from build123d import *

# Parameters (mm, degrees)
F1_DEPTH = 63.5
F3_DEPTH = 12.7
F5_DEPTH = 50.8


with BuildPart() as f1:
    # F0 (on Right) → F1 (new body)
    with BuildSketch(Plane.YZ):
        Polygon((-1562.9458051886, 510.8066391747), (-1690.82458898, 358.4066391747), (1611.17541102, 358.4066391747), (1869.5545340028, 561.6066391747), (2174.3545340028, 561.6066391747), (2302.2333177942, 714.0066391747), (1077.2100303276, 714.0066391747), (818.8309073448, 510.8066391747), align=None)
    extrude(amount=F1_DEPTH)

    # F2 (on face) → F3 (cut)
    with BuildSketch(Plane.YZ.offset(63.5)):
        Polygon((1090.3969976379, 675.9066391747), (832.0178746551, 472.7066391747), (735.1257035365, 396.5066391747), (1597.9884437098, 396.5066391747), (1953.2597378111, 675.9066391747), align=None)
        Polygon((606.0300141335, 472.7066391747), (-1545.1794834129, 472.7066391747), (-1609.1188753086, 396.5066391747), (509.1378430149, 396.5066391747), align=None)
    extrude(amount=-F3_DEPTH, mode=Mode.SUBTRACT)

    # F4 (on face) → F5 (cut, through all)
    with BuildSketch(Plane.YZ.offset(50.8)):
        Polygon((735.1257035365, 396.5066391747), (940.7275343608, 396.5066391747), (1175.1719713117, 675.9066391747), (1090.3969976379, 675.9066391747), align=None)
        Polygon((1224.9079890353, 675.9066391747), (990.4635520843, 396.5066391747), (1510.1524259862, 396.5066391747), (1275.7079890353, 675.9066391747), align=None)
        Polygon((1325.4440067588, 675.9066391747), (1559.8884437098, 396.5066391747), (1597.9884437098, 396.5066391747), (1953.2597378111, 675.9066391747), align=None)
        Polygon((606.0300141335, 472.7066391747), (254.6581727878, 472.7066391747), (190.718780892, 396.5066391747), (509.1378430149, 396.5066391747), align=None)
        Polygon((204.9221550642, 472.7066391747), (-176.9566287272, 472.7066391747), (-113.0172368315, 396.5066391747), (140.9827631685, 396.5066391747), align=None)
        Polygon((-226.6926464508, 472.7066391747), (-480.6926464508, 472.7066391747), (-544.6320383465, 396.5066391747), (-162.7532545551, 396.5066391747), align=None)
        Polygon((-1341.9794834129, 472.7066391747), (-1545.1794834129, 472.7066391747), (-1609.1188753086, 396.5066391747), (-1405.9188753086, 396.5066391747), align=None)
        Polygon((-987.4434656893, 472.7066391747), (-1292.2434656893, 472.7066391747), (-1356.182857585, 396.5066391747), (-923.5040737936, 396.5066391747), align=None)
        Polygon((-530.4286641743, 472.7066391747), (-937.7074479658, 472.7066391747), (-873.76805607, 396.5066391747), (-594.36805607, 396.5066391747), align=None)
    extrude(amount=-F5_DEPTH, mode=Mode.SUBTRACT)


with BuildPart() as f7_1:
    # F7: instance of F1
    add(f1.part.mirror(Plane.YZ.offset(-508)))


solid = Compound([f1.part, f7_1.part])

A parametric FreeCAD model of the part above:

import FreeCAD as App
import Part
import Sketcher
Q = App.Units.Quantity

doc = App.newDocument("Part")
body = doc.addObject("PartDesign::Body", "Body")

# Sketch on YZ plane
sketch1 = body.newObject("Sketcher::SketchObject", "Sketch")
sketch1.AttachmentSupport = (doc.getObject("YZ_Plane"), [""])
sketch1.MapMode = "FlatFace"
sketch1.addGeometry([
    Part.LineSegment(App.Vector(-1563, 511, 0), App.Vector(-1691, 358, 0)),  # 0
    Part.LineSegment(App.Vector(-1691, 358, 0), App.Vector(1611, 358, 0)),  # 1
    Part.LineSegment(App.Vector(1611, 358, 0), App.Vector(1870, 562, 0)),  # 2
    Part.LineSegment(App.Vector(1870, 562, 0), App.Vector(2174, 562, 0)),  # 3
    Part.LineSegment(App.Vector(2174, 562, 0), App.Vector(2302, 714, 0)),  # 4
    Part.LineSegment(App.Vector(2302, 714, 0), App.Vector(1077, 714, 0)),  # 5
    Part.LineSegment(App.Vector(1077, 714, 0), App.Vector(819, 511, 0)),  # 6
    Part.LineSegment(App.Vector(819, 511, 0), App.Vector(-1563, 511, 0)),  # 7
], False)
sketch1.addConstraint([
    Sketcher.Constraint("Coincident", 0, 2, 1, 1),
    Sketcher.Constraint("Coincident", 1, 2, 2, 1),
    Sketcher.Constraint("Coincident", 2, 2, 3, 1),
    Sketcher.Constraint("Coincident", 3, 2, 4, 1),
    Sketcher.Constraint("Coincident", 4, 2, 5, 1),
    Sketcher.Constraint("Coincident", 5, 2, 6, 1),
    Sketcher.Constraint("Coincident", 6, 2, 7, 1),
    Sketcher.Constraint("Coincident", 7, 2, 0, 1),
    Sketcher.Constraint("Horizontal", 1),
    Sketcher.Constraint("Horizontal", 3),
    Sketcher.Constraint("Horizontal", 5),
    Sketcher.Constraint("Horizontal", 7),
    Sketcher.Constraint("Parallel", 0, 4),
    Sketcher.Constraint("Parallel", 2, 6),
    Sketcher.Constraint("Equal", 0, 4),
    Sketcher.Constraint("DistanceX", 1, 1, 1, 2, Q("130 in")),
    Sketcher.Constraint("DistanceX", 3, 1, 3, 2, Q("12 in")),
    Sketcher.Constraint("Angle", 0, Q("-130 deg")),
    Sketcher.Constraint("DistanceY", 1, 2, 2, 2, Q("8 in")),
    Sketcher.Constraint("DistanceY", 3, 2, 4, 2, Q("6 in")),
    Sketcher.Constraint("DistanceX", 5, 2, 5, 1, Q("1225.023287 mm")),
    Sketcher.Constraint("DistanceX", 0, 2, -1, 1, Q("1690.824589 mm")),
    Sketcher.Constraint("DistanceY", -1, 1, 0, 2, Q("358.406639 mm")),
    Sketcher.Constraint("DistanceX", -1, 1, 5, 2, Q("1077.21003 mm")),
])
pad1 = body.newObject("PartDesign::Pad", "Pad")
pad1.Profile = sketch1
pad1.Length = Q("2.5 in")

# Sketch on YZ plane
sketch2 = body.newObject("Sketcher::SketchObject", "Sketch001")
sketch2.AttachmentSupport = (doc.getObject("YZ_Plane"), [""])
sketch2.MapMode = "FlatFace"
sketch2.AttachmentOffset = App.Placement(App.Vector(0, 0, 2.5 * 25.4), App.Rotation())
sketch2.addGeometry([
    Part.LineSegment(App.Vector(1090, 676, 0), App.Vector(735, 397, 0)),  # 0
    Part.LineSegment(App.Vector(735, 397, 0), App.Vector(1598, 397, 0)),  # 1
    Part.LineSegment(App.Vector(1598, 397, 0), App.Vector(1953, 676, 0)),  # 2
    Part.LineSegment(App.Vector(1953, 676, 0), App.Vector(1090, 676, 0)),  # 3
    Part.LineSegment(App.Vector(606, 473, 0), App.Vector(-1545, 473, 0)),  # 4
    Part.LineSegment(App.Vector(-1545, 473, 0), App.Vector(-1609, 397, 0)),  # 5
    Part.LineSegment(App.Vector(-1609, 397, 0), App.Vector(509, 397, 0)),  # 6
    Part.LineSegment(App.Vector(509, 397, 0), App.Vector(606, 473, 0)),  # 7
], False)
sketch2.addConstraint([
    Sketcher.Constraint("Coincident", 0, 2, 1, 1),
    Sketcher.Constraint("Coincident", 1, 2, 2, 1),
    Sketcher.Constraint("Coincident", 2, 2, 3, 1),
    Sketcher.Constraint("Coincident", 3, 2, 0, 1),
    Sketcher.Constraint("Coincident", 4, 2, 5, 1),
    Sketcher.Constraint("Coincident", 5, 2, 6, 1),
    Sketcher.Constraint("Coincident", 6, 2, 7, 1),
    Sketcher.Constraint("Coincident", 7, 2, 4, 1),
    Sketcher.Constraint("Horizontal", 1),
    Sketcher.Constraint("Horizontal", 3),
    Sketcher.Constraint("Horizontal", 4),
    Sketcher.Constraint("Horizontal", 6),
    Sketcher.Constraint("Parallel", 0, 2),
    Sketcher.Constraint("Parallel", 2, 7),
    Sketcher.Constraint("Horizontal", 1, 2, 5, 2),
    Sketcher.Constraint("Angle", 5, Q("-130 deg")),
    Sketcher.Constraint("DistanceY", 1, 2, 2, 2, Q("11 in")),
    Sketcher.Constraint("DistanceY", 0, 2, 4, 2, Q("3 in")),
    Sketcher.Constraint("DistanceX", 1, 1, 1, 2, Q("862.86274 mm")),
    Sketcher.Constraint("DistanceX", 6, 1, 6, 2, Q("2118.256718 mm")),
    Sketcher.Constraint("DistanceX", 6, 2, 1, 2, Q("1088.850601 mm")),
    Sketcher.Constraint("Distance", 0, Q("451.975721 mm")),
    Sketcher.Constraint("DistanceY", -1, 1, 0, 2, Q("396.506639 mm")),
    Sketcher.Constraint("DistanceX", -1, 1, 0, 2, Q("735.125704 mm")),
])
pocket1 = body.newObject("PartDesign::Pocket", "Pocket")
pocket1.Profile = sketch2
pocket1.Length = Q("0.5 in")

# Sketch on YZ plane
sketch3 = body.newObject("Sketcher::SketchObject", "Sketch002")
sketch3.AttachmentSupport = (doc.getObject("YZ_Plane"), [""])
sketch3.MapMode = "FlatFace"
sketch3.AttachmentOffset = App.Placement(App.Vector(0, 0, 2 * 25.4), App.Rotation())
sketch3.addGeometry([
    Part.LineSegment(App.Vector(735, 397, 0), App.Vector(941, 397, 0)),  # 0
    Part.LineSegment(App.Vector(941, 397, 0), App.Vector(1175, 676, 0)),  # 1
    Part.LineSegment(App.Vector(1175, 676, 0), App.Vector(1090, 676, 0)),  # 2
    Part.LineSegment(App.Vector(1090, 676, 0), App.Vector(735, 397, 0)),  # 3
    Part.LineSegment(App.Vector(1225, 676, 0), App.Vector(990, 397, 0)),  # 4
    Part.LineSegment(App.Vector(990, 397, 0), App.Vector(1510, 397, 0)),  # 5
    Part.LineSegment(App.Vector(1510, 397, 0), App.Vector(1276, 676, 0)),  # 6
    Part.LineSegment(App.Vector(1276, 676, 0), App.Vector(1225, 676, 0)),  # 7
    Part.LineSegment(App.Vector(1325, 676, 0), App.Vector(1560, 397, 0)),  # 8
    Part.LineSegment(App.Vector(1560, 397, 0), App.Vector(1598, 397, 0)),  # 9
    Part.LineSegment(App.Vector(1598, 397, 0), App.Vector(1953, 676, 0)),  # 10
    Part.LineSegment(App.Vector(1953, 676, 0), App.Vector(1325, 676, 0)),  # 11
    Part.LineSegment(App.Vector(606, 473, 0), App.Vector(255, 473, 0)),  # 12
    Part.LineSegment(App.Vector(255, 473, 0), App.Vector(191, 397, 0)),  # 13
    Part.LineSegment(App.Vector(191, 397, 0), App.Vector(509, 397, 0)),  # 14
    Part.LineSegment(App.Vector(509, 397, 0), App.Vector(606, 473, 0)),  # 15
    Part.LineSegment(App.Vector(205, 473, 0), App.Vector(-177, 473, 0)),  # 16
    Part.LineSegment(App.Vector(-177, 473, 0), App.Vector(-113, 397, 0)),  # 17
    Part.LineSegment(App.Vector(-113, 397, 0), App.Vector(141, 397, 0)),  # 18
    Part.LineSegment(App.Vector(141, 397, 0), App.Vector(205, 473, 0)),  # 19
    Part.LineSegment(App.Vector(-227, 473, 0), App.Vector(-481, 473, 0)),  # 20
    Part.LineSegment(App.Vector(-481, 473, 0), App.Vector(-545, 397, 0)),  # 21
    Part.LineSegment(App.Vector(-545, 397, 0), App.Vector(-163, 397, 0)),  # 22
    Part.LineSegment(App.Vector(-163, 397, 0), App.Vector(-227, 473, 0)),  # 23
    Part.LineSegment(App.Vector(-1342, 473, 0), App.Vector(-1545, 473, 0)),  # 24
    Part.LineSegment(App.Vector(-1545, 473, 0), App.Vector(-1609, 397, 0)),  # 25
    Part.LineSegment(App.Vector(-1609, 397, 0), App.Vector(-1406, 397, 0)),  # 26
    Part.LineSegment(App.Vector(-1406, 397, 0), App.Vector(-1342, 473, 0)),  # 27
    Part.LineSegment(App.Vector(-987, 473, 0), App.Vector(-1292, 473, 0)),  # 28
    Part.LineSegment(App.Vector(-1292, 473, 0), App.Vector(-1356, 397, 0)),  # 29
    Part.LineSegment(App.Vector(-1356, 397, 0), App.Vector(-924, 397, 0)),  # 30
    Part.LineSegment(App.Vector(-924, 397, 0), App.Vector(-987, 473, 0)),  # 31
    Part.LineSegment(App.Vector(-530, 473, 0), App.Vector(-938, 473, 0)),  # 32
    Part.LineSegment(App.Vector(-938, 473, 0), App.Vector(-874, 397, 0)),  # 33
    Part.LineSegment(App.Vector(-874, 397, 0), App.Vector(-594, 397, 0)),  # 34
    Part.LineSegment(App.Vector(-594, 397, 0), App.Vector(-530, 473, 0)),  # 35
], False)
sketch3.addConstraint([
    Sketcher.Constraint("Coincident", 0, 2, 1, 1),
    Sketcher.Constraint("Coincident", 1, 2, 2, 1),
    Sketcher.Constraint("Coincident", 2, 2, 3, 1),
    Sketcher.Constraint("Coincident", 3, 2, 0, 1),
    Sketcher.Constraint("Coincident", 4, 2, 5, 1),
    Sketcher.Constraint("Coincident", 5, 2, 6, 1),
    Sketcher.Constraint("Coincident", 6, 2, 7, 1),
    Sketcher.Constraint("Coincident", 7, 2, 4, 1),
    Sketcher.Constraint("Coincident", 8, 2, 9, 1),
    Sketcher.Constraint("Coincident", 9, 2, 10, 1),
    Sketcher.Constraint("Coincident", 10, 2, 11, 1),
    Sketcher.Constraint("Coincident", 11, 2, 8, 1),
    Sketcher.Constraint("Coincident", 12, 2, 13, 1),
    Sketcher.Constraint("Coincident", 13, 2, 14, 1),
    Sketcher.Constraint("Coincident", 14, 2, 15, 1),
    Sketcher.Constraint("Coincident", 15, 2, 12, 1),
    Sketcher.Constraint("Coincident", 16, 2, 17, 1),
    Sketcher.Constraint("Coincident", 17, 2, 18, 1),
    Sketcher.Constraint("Coincident", 18, 2, 19, 1),
    Sketcher.Constraint("Coincident", 19, 2, 16, 1),
    Sketcher.Constraint("Coincident", 20, 2, 21, 1),
    Sketcher.Constraint("Coincident", 21, 2, 22, 1),
    Sketcher.Constraint("Coincident", 22, 2, 23, 1),
    Sketcher.Constraint("Coincident", 23, 2, 20, 1),
    Sketcher.Constraint("Coincident", 24, 2, 25, 1),
    Sketcher.Constraint("Coincident", 25, 2, 26, 1),
    Sketcher.Constraint("Coincident", 26, 2, 27, 1),
    Sketcher.Constraint("Coincident", 27, 2, 24, 1),
    Sketcher.Constraint("Coincident", 28, 2, 29, 1),
    Sketcher.Constraint("Coincident", 29, 2, 30, 1),
    Sketcher.Constraint("Coincident", 30, 2, 31, 1),
    Sketcher.Constraint("Coincident", 31, 2, 28, 1),
    Sketcher.Constraint("Coincident", 32, 2, 33, 1),
    Sketcher.Constraint("Coincident", 33, 2, 34, 1),
    Sketcher.Constraint("Coincident", 34, 2, 35, 1),
    Sketcher.Constraint("Coincident", 35, 2, 32, 1),
    Sketcher.Constraint("Horizontal", 0),
    Sketcher.Constraint("Horizontal", 2),
    Sketcher.Constraint("Horizontal", 5),
    Sketcher.Constraint("Horizontal", 7),
    Sketcher.Constraint("Horizontal", 9),
    Sketcher.Constraint("Horizontal", 11),
    Sketcher.Constraint("Horizontal", 12),
    Sketcher.Constraint("Horizontal", 14),
    Sketcher.Constraint("Horizontal", 16),
    Sketcher.Constraint("Horizontal", 18),
    Sketcher.Constraint("Horizontal", 20),
    Sketcher.Constraint("Horizontal", 22),
    Sketcher.Constraint("Horizontal", 24),
    Sketcher.Constraint("Horizontal", 26),
    Sketcher.Constraint("Horizontal", 28),
    Sketcher.Constraint("Horizontal", 30),
    Sketcher.Constraint("Horizontal", 32),
    Sketcher.Constraint("Horizontal", 34),
    Sketcher.Constraint("Parallel", 1, 4),
    Sketcher.Constraint("Parallel", 6, 8),
    Sketcher.Constraint("Parallel", 3, 10),
    Sketcher.Constraint("Parallel", 4, 13),
    Sketcher.Constraint("Parallel", 10, 15),
    Sketcher.Constraint("Parallel", 8, 17),
    Sketcher.Constraint("Parallel", 13, 19),
    Sketcher.Constraint("Parallel", 19, 21),
    Sketcher.Constraint("Parallel", 17, 23),
    Sketcher.Constraint("Parallel", 21, 25),
    Sketcher.Constraint("Parallel", 25, 27),
    Sketcher.Constraint("Parallel", 27, 29),
    Sketcher.Constraint("Parallel", 23, 31),
    Sketcher.Constraint("Parallel", 31, 33),
    Sketcher.Constraint("Parallel", 29, 35),
    Sketcher.Constraint("Horizontal", 3, 2, 4, 2),
    Sketcher.Constraint("Horizontal", 2, 2, 6, 2),
    Sketcher.Constraint("Horizontal", 5, 2, 8, 2),
    Sketcher.Constraint("Horizontal", 7, 2, 10, 2),
    Sketcher.Constraint("Horizontal", 9, 2, 13, 2),
    Sketcher.Constraint("Horizontal", 15, 2, 16, 2),
    Sketcher.Constraint("Horizontal", 14, 2, 17, 2),
    Sketcher.Constraint("Horizontal", 19, 2, 20, 2),
    Sketcher.Constraint("Horizontal", 18, 2, 21, 2),
    Sketcher.Constraint("Horizontal", 23, 2, 24, 2),
    Sketcher.Constraint("Horizontal", 22, 2, 25, 2),
    Sketcher.Constraint("Horizontal", 27, 2, 28, 2),
    Sketcher.Constraint("Horizontal", 26, 2, 29, 2),
    Sketcher.Constraint("Horizontal", 31, 2, 32, 2),
    Sketcher.Constraint("Horizontal", 30, 2, 33, 2),
    Sketcher.Constraint("Equal", 18, 20),
    Sketcher.Constraint("Equal", 4, 6),
    Sketcher.Constraint("DistanceX", 7, 2, 7, 1, Q("2 in")),
    Sketcher.Constraint("DistanceX", 18, 1, 18, 2, Q("10 in")),
    Sketcher.Constraint("DistanceX", 24, 2, 24, 1, Q("8 in")),
    Sketcher.Constraint("DistanceX", 28, 2, 28, 1, Q("12 in")),
    Sketcher.Constraint("DistanceX", 34, 1, 34, 2, Q("11 in")),
    Sketcher.Constraint("DistanceX", 9, 1, 9, 2, Q("1.5 in")),
    Sketcher.Constraint("Angle", 1, Q("50 deg")),
    Sketcher.Constraint("DistanceY", 0, 2, 1, 2, Q("11 in")),
    Sketcher.Constraint("DistanceY", 3, 2, 12, 2, Q("3 in")),
    Sketcher.Constraint("DistanceX", 0, 1, 0, 2, Q("205.601831 mm")),
    Sketcher.Constraint("DistanceX", 11, 2, 11, 1, Q("627.815731 mm")),
    Sketcher.Constraint("DistanceX", 12, 2, 12, 1, Q("351.371841 mm")),
    Sketcher.Constraint("DistanceX", 12, 2, 1, 2, Q("920.513799 mm")),
    Sketcher.Constraint("DistanceX", 16, 2, 12, 2, Q("431.614802 mm")),
    Sketcher.Constraint("DistanceX", 20, 2, 19, 2, Q("685.614802 mm")),
    Sketcher.Constraint("DistanceY", -1, 1, 0, 2, Q("396.506639 mm")),
    Sketcher.Constraint("DistanceX", -1, 1, 1, 2, Q("1175.171971 mm")),
    Sketcher.Constraint("DistanceX", -1, 1, 6, 2, Q("1275.707989 mm")),
    Sketcher.Constraint("DistanceX", 5, 2, 10, 2, Q("443.107312 mm")),
    Sketcher.Constraint("DistanceX", 24, 2, 22, 2, Q("1382.426229 mm")),
    Sketcher.Constraint("DistanceX", 26, 2, 28, 2, Q("113.67541 mm")),
    Sketcher.Constraint("DistanceX", 32, 2, 21, 2, Q("393.07541 mm")),
])
pocket2 = body.newObject("PartDesign::Pocket", "Pocket001")
pocket2.Profile = sketch3
pocket2.Type = "ThroughAll"
body2 = doc.addObject("PartDesign::Body", "Body001")
doc.recompute()

mirroring = doc.addObject("Part::Mirroring", "Mirroring")
mirroring.Source = body
mirroring.Base = App.Vector(-508, 0, 0)
mirroring.Normal = App.Vector(1, 0, 0)
body2.BaseFeature = mirroring
doc.recompute()
mirroring.Visibility = False

doc.recompute()
